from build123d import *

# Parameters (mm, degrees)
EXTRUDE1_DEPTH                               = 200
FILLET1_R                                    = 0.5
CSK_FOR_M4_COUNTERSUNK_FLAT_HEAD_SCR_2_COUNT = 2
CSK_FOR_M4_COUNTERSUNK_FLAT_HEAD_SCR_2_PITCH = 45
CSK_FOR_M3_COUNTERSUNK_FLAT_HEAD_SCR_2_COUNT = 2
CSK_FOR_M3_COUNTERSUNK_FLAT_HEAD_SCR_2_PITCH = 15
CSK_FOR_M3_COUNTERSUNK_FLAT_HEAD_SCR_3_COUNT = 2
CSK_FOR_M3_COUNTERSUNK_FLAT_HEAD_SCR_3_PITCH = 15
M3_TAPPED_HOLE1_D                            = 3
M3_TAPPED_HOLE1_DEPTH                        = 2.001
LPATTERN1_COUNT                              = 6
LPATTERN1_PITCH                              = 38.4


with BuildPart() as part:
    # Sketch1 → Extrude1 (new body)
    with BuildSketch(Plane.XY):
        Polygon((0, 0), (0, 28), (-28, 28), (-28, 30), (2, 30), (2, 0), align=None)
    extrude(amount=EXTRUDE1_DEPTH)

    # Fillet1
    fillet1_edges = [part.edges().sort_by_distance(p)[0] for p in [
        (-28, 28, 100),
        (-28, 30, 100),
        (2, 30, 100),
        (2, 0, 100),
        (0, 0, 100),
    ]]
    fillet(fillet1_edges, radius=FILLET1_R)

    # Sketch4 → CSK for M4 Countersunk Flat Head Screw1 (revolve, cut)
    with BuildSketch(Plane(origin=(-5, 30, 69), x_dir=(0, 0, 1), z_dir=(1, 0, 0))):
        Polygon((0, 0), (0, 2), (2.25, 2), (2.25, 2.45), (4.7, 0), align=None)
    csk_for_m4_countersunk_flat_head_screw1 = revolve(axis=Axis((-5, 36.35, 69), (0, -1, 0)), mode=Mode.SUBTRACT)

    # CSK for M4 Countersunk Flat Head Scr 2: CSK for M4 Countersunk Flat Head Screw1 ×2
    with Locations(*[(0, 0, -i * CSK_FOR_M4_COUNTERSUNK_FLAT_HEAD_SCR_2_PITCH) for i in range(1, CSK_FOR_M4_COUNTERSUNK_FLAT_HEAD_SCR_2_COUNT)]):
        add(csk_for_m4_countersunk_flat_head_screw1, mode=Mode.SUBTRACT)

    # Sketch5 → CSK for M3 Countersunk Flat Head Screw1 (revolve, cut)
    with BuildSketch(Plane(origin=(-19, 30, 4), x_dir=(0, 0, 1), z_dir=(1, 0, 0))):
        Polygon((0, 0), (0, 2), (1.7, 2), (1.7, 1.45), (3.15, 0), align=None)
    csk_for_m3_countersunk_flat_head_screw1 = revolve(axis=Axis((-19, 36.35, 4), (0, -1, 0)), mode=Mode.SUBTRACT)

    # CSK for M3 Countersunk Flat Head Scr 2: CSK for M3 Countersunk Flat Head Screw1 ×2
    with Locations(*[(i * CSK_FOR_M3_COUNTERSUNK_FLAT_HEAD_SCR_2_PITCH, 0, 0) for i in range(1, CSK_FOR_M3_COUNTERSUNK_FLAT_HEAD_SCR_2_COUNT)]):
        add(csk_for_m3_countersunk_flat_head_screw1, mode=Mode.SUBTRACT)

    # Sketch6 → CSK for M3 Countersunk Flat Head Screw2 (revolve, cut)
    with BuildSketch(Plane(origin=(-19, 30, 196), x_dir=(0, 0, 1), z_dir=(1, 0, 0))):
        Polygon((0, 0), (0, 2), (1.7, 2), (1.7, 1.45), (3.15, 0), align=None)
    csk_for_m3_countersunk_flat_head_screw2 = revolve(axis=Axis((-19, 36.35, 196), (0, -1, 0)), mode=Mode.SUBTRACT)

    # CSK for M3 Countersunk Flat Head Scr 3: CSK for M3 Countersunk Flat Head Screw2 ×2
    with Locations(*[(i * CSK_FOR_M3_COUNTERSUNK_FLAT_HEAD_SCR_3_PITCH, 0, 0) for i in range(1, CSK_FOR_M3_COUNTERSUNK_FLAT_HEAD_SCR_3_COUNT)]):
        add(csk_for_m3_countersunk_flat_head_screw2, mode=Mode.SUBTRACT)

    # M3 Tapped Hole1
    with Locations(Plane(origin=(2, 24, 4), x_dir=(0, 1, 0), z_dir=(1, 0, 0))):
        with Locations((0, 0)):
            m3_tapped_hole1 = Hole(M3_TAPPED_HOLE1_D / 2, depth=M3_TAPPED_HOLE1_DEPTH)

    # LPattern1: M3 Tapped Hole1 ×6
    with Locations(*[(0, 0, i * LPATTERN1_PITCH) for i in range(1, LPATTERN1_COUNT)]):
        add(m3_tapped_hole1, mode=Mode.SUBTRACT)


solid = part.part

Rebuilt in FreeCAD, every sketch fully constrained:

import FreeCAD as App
import Part
import Sketcher
from FreeCAD import Vector
Q = App.Units.Quantity


def edges_at(feature, points):
    """Names of the edges that pass closest to the given points."""
    edges = feature.Shape.Edges
    near = lambda p: min(range(len(edges)), key=lambda i: edges[i].distToShape(Part.Vertex(*p))[0])
    return sorted({f"Edge{near(p) + 1}" for p in points})

doc = App.newDocument("Part")
body = doc.addObject("PartDesign::Body", "Body")

# Sketch on XY plane
sketch1 = body.newObject("Sketcher::SketchObject", "Sketch")
sketch1.AttachmentSupport = (doc.getObject("XY_Plane"), [""])
sketch1.MapMode = "FlatFace"
sketch1.addGeometry([
    Part.LineSegment(Vector(0, 28, 0), Vector(0, 0, 0)),  # 0
    Part.LineSegment(Vector(0, 0, 0), Vector(2, 0, 0)),  # 1
    Part.LineSegment(Vector(2, 0, 0), Vector(2, 30, 0)),  # 2
    Part.LineSegment(Vector(2, 30, 0), Vector(-28, 30, 0)),  # 3
    Part.LineSegment(Vector(-28, 30, 0), Vector(-28, 28, 0)),  # 4
    Part.LineSegment(Vector(-28, 28, 0), Vector(0, 28, 0)),  # 5
], False)
sketch1.addConstraint([
    Sketcher.Constraint("Coincident", 0, 2, 1, 1),
    Sketcher.Constraint("Coincident", 1, 2, 2, 1),
    Sketcher.Constraint("Coincident", 2, 2, 3, 1),
    Sketcher.Constraint("Coincident", 3, 2, 4, 1),
    Sketcher.Constraint("Coincident", 4, 2, 5, 1),
    Sketcher.Constraint("Coincident", 5, 2, 0, 1),
    Sketcher.Constraint("Vertical", 0),
    Sketcher.Constraint("Horizontal", 1),
    Sketcher.Constraint("Vertical", 2),
    Sketcher.Constraint("Horizontal", 3),
    Sketcher.Constraint("Vertical", 4),
    Sketcher.Constraint("Horizontal", 5),
    Sketcher.Constraint("Coincident", 0, 2, -1, 1),
    Sketcher.Constraint("Equal", 5, 0),
    Sketcher.Constraint("Equal", 3, 2),
    Sketcher.Constraint("DistanceX", 1, 1, 1, 2, Q("2 mm")),
    Sketcher.Constraint("DistanceX", 3, 2, 3, 1, Q("30 mm")),
])
pad1 = body.newObject("PartDesign::Pad", "Pad")
pad1.Profile = sketch1
pad1.Length = 200
doc.recompute()

fillet = body.newObject("PartDesign::Fillet", "Fillet")
fillet.Base = (pad1, edges_at(pad1, [
    (-28, 28, 100),
    (-28, 30, 100),
    (2, 30, 100),
    (2, 0, 100),
    (0, 0, 100),
]))
fillet.Radius = 0.5

# Sketch on YZ plane
sketch2 = body.newObject("Sketcher::SketchObject", "Sketch001")
sketch2.AttachmentSupport = (doc.getObject("YZ_Plane"), [""])
sketch2.MapMode = "FlatFace"
sketch2.AttachmentOffset = App.Placement(Vector(0, 0, -5), App.Rotation())
sketch2.addGeometry([
    Part.LineSegment(Vector(28, 69, 0), Vector(30, 69, 0)),  # 0
    Part.LineSegment(Vector(30, 69, 0), Vector(30, 73.7, 0)),  # 1
    Part.LineSegment(Vector(30, 73.7, 0), Vector(27.55, 71.25, 0)),  # 2
    Part.LineSegment(Vector(27.55, 71.25, 0), Vector(28, 71.25, 0)),  # 3
    Part.LineSegment(Vector(28, 71.25, 0), Vector(28, 69, 0)),  # 4
], False)
sketch2.addGeometry(Part.LineSegment(Vector(30, 69, 0), Vector(27.55, 69, 0)), True)  # axis
sketch2.addConstraint([
    Sketcher.Constraint("Coincident", 0, 2, 1, 1),
    Sketcher.Constraint("Coincident", 1, 2, 2, 1),
    Sketcher.Constraint("Coincident", 2, 2, 3, 1),
    Sketcher.Constraint("Coincident", 3, 2, 4, 1),
    Sketcher.Constraint("Coincident", 4, 2, 0, 1),
    Sketcher.Constraint("Horizontal", 0),
    Sketcher.Constraint("Vertical", 1),
    Sketcher.Constraint("Horizontal", 3),
    Sketcher.Constraint("Vertical", 4),
    Sketcher.Constraint("Horizontal", 5),
    Sketcher.Constraint("Coincident", 5, 1, 0, 2),
    Sketcher.Constraint("Vertical", 2, 2, 5, 2),
    Sketcher.Constraint("DistanceX", 0, 1, 0, 2, Q("2 mm")),
    Sketcher.Constraint("Angle", 2, Q("-135 deg")),
    Sketcher.Constraint("DistanceY", 1, 1, 1, 2, Q("4.7 mm")),
    Sketcher.Constraint("DistanceX", -1, 1, 0, 2, Q("30 mm")),
    Sketcher.Constraint("DistanceY", -1, 1, 0, 2, Q("69 mm")),
    Sketcher.Constraint("DistanceX", 3, 1, 3, 2, Q("0.45 mm")),
])
groove = body.newObject("PartDesign::Groove", "Groove")
groove.Profile = sketch2
groove.ReferenceAxis = (sketch2, ["Axis0"])
groove.Angle = 360
doc.recompute()

linearpattern = body.newObject("PartDesign::LinearPattern", "LinearPattern")
linearpattern.Originals = [groove]
linearpattern.Direction = (doc.getObject("Z_Axis"), [""])
linearpattern.Mode = "offset"
linearpattern.Offset = 45
linearpattern.Occurrences = 2
linearpattern.Reversed = True
body.Tip = linearpattern

# Sketch on YZ plane
sketch3 = body.newObject("Sketcher::SketchObject", "Sketch002")
sketch3.AttachmentSupport = (doc.getObject("YZ_Plane"), [""])
sketch3.MapMode = "FlatFace"
sketch3.AttachmentOffset = App.Placement(Vector(0, 0, -19), App.Rotation())
sketch3.addGeometry([
    Part.LineSegment(Vector(28, 4, 0), Vector(30, 4, 0)),  # 0
    Part.LineSegment(Vector(30, 4, 0), Vector(30, 7.2, 0)),  # 1
    Part.LineSegment(Vector(30, 7.2, 0), Vector(28.6, 5.7, 0)),  # 2
    Part.LineSegment(Vector(28.6, 5.7, 0), Vector(28, 5.7, 0)),  # 3
    Part.LineSegment(Vector(28, 5.7, 0), Vector(28, 4, 0)),  # 4
], False)
sketch3.addGeometry(Part.LineSegment(Vector(30, 4, 0), Vector(28, 4, 0)), True)  # axis
sketch3.addConstraint([
    Sketcher.Constraint("Coincident", 0, 2, 1, 1),
    Sketcher.Constraint("Coincident", 1, 2, 2, 1),
    Sketcher.Constraint("Coincident", 2, 2, 3, 1),
    Sketcher.Constraint("Coincident", 3, 2, 4, 1),
    Sketcher.Constraint("Coincident", 4, 2, 0, 1),
    Sketcher.Constraint("Horizontal", 0),
    Sketcher.Constraint("Vertical", 1),
    Sketcher.Constraint("Horizontal", 3),
    Sketcher.Constraint("Vertical", 4),
    Sketcher.Constraint("Horizontal", 5),
    Sketcher.Constraint("Coincident", 5, 1, 0, 2),
    Sketcher.Constraint("Vertical", 3, 2, 5, 2),
    Sketcher.Constraint("DistanceX", 0, 1, 0, 2, Q("2 mm")),
    Sketcher.Constraint("Angle", 2, Q("-135 deg")),
    Sketcher.Constraint("DistanceY", 4, 2, 4, 1, Q("1.7 mm")),
    Sketcher.Constraint("DistanceX", -1, 1, 0, 2, Q("30 mm")),
    Sketcher.Constraint("DistanceY", -1, 1, 0, 2, Q("4 mm")),
    Sketcher.Constraint("DistanceX", 3, 2, 3, 1, Q("0.55 mm")),
])
groove2 = body.newObject("PartDesign::Groove", "Groove001")
groove2.Profile = sketch3
groove2.ReferenceAxis = (sketch3, ["Axis0"])
groove2.Angle = 360
doc.recompute()

linearpattern2 = body.newObject("PartDesign::LinearPattern", "LinearPattern001")
linearpattern2.Originals = [groove2]
linearpattern2.Direction = (doc.getObject("X_Axis"), [""])
linearpattern2.Mode = "offset"
linearpattern2.Offset = 15
linearpattern2.Occurrences = 2
body.Tip = linearpattern2

# Sketch on YZ plane
sketch4 = body.newObject("Sketcher::SketchObject", "Sketch003")
sketch4.AttachmentSupport = (doc.getObject("YZ_Plane"), [""])
sketch4.MapMode = "FlatFace"
sketch4.AttachmentOffset = App.Placement(Vector(0, 0, -19), App.Rotation())
sketch4.addGeometry([
    Part.LineSegment(Vector(28, 196, 0), Vector(30, 196, 0)),  # 0
    Part.LineSegment(Vector(30, 196, 0), Vector(30, 199.2, 0)),  # 1
    Part.LineSegment(Vector(30, 199.2, 0), Vector(28.6, 197.7, 0)),  # 2
    Part.LineSegment(Vector(28.6, 197.7, 0), Vector(28, 197.7, 0)),  # 3
    Part.LineSegment(Vector(28, 197.7, 0), Vector(28, 196, 0)),  # 4
], False)
sketch4.addGeometry(Part.LineSegment(Vector(30, 196, 0), Vector(28, 196, 0)), True)  # axis
sketch4.addConstraint([
    Sketcher.Constraint("Coincident", 0, 2, 1, 1),
    Sketcher.Constraint("Coincident", 1, 2, 2, 1),
    Sketcher.Constraint("Coincident", 2, 2, 3, 1),
    Sketcher.Constraint("Coincident", 3, 2, 4, 1),
    Sketcher.Constraint("Coincident", 4, 2, 0, 1),
    Sketcher.Constraint("Horizontal", 0),
    Sketcher.Constraint("Vertical", 1),
    Sketcher.Constraint("Horizontal", 3),
    Sketcher.Constraint("Vertical", 4),
    Sketcher.Constraint("Horizontal", 5),
    Sketcher.Constraint("Coincident", 5, 1, 0, 2),
    Sketcher.Constraint("Vertical", 3, 2, 5, 2),
    Sketcher.Constraint("DistanceX", 0, 1, 0, 2, Q("2 mm")),
    Sketcher.Constraint("Angle", 2, Q("-135 deg")),
    Sketcher.Constraint("DistanceY", 4, 2, 4, 1, Q("1.7 mm")),
    Sketcher.Constraint("DistanceX", -1, 1, 0, 2, Q("30 mm")),
    Sketcher.Constraint("DistanceY", -1, 1, 0, 2, Q("196 mm")),
    Sketcher.Constraint("DistanceX", 3, 2, 3, 1, Q("0.55 mm")),
])
groove3 = body.newObject("PartDesign::Groove", "Groove002")
groove3.Profile = sketch4
groove3.ReferenceAxis = (sketch4, ["Axis0"])
groove3.Angle = 360
doc.recompute()

linearpattern3 = body.newObject("PartDesign::LinearPattern", "LinearPattern002")
linearpattern3.Originals = [groove3]
linearpattern3.Direction = (doc.getObject("X_Axis"), [""])
linearpattern3.Mode = "offset"
linearpattern3.Offset = 15
linearpattern3.Occurrences = 2
body.Tip = linearpattern3

# Sketch on YZ plane
sketch5 = body.newObject("Sketcher::SketchObject", "Sketch004")
sketch5.AttachmentSupport = (doc.getObject("YZ_Plane"), [""])
sketch5.MapMode = "FlatFace"
sketch5.AttachmentOffset = App.Placement(Vector(0, 0, 2), App.Rotation())
sketch5.addGeometry(Part.Circle(Vector(24, 4, 0), Vector(0, 0, 1), 1.5), False)
sketch5.addConstraint([
    Sketcher.Constraint("Diameter", 0, Q("3 mm")),
    Sketcher.Constraint("DistanceX", -1, 1, 0, 3, Q("24 mm")),
    Sketcher.Constraint("DistanceY", -1, 1, 0, 3, Q("4 mm")),
])
doc.recompute()
hole = body.newObject("PartDesign::Hole", "Hole")
hole.Profile = sketch5
hole.ThreadType = "None"
hole.Diameter = 3
hole.DepthType = "Dimension"
hole.Depth = 2.001
hole.DrillPoint = "Flat"
doc.recompute()

linearpattern4 = body.newObject("PartDesign::LinearPattern", "LinearPattern003")
linearpattern4.Originals = [hole]
linearpattern4.Direction = (doc.getObject("Z_Axis"), [""])
linearpattern4.Mode = "offset"
linearpattern4.Offset = 38.4
linearpattern4.Occurrences = 6
body.Tip = linearpattern4

doc.recompute()
